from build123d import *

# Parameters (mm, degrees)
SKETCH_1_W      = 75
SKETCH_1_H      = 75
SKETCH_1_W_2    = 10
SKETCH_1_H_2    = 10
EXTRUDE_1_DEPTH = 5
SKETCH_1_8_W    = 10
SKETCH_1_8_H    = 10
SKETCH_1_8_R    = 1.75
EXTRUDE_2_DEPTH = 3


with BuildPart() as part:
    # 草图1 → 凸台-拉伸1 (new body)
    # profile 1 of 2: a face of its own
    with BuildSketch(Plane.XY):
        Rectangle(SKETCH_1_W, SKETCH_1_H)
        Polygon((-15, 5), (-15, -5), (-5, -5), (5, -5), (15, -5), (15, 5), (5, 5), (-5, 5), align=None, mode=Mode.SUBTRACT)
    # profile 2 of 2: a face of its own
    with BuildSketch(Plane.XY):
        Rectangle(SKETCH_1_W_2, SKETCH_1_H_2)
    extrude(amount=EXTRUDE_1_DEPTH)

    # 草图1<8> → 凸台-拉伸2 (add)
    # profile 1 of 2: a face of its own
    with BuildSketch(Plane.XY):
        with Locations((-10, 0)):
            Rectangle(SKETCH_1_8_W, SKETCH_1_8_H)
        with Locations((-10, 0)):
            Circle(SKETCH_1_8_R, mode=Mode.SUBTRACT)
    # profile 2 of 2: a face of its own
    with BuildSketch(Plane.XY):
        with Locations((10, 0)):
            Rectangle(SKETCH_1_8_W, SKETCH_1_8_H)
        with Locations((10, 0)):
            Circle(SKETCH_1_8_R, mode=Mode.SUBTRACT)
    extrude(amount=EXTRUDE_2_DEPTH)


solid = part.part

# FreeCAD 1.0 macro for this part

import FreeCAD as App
import Part
import Sketcher
Q = App.Units.Quantity

doc = App.newDocument("Part")
body = doc.addObject("PartDesign::Body", "Body")

# Sketch on XY plane
sketch1 = body.newObject("Sketcher::SketchObject", "Sketch")
sketch1.AttachmentSupport = (doc.getObject("XY_Plane"), [""])
sketch1.MapMode = "FlatFace"
sketch1.addGeometry([
    Part.LineSegment(App.Vector(-38, 38, 0), App.Vector(-38, -38, 0)),  # 0
    Part.LineSegment(App.Vector(-38, -38, 0), App.Vector(38, -38, 0)),  # 1
    Part.LineSegment(App.Vector(38, -38, 0), App.Vector(38, 38, 0)),  # 2
    Part.LineSegment(App.Vector(38, 38, 0), App.Vector(-38, 38, 0)),  # 3
    Part.LineSegment(App.Vector(-15, -5, 0), App.Vector(-15, 5, 0)),  # 4
    Part.LineSegment(App.Vector(-15, 5, 0), App.Vector(-5, 5, 0)),  # 5
    Part.LineSegment(App.Vector(-5, 5, 0), App.Vector(-5, -5, 0)),  # 6
    Part.LineSegment(App.Vector(-5, -5, 0), App.Vector(-15, -5, 0)),  # 7
    Part.LineSegment(App.Vector(5, 5, 0), App.Vector(15, 5, 0)),  # 8
    Part.LineSegment(App.Vector(15, 5, 0), App.Vector(15, -5, 0)),  # 9
    Part.LineSegment(App.Vector(15, -5, 0), App.Vector(5, -5, 0)),  # 10
    Part.LineSegment(App.Vector(5, -5, 0), App.Vector(5, 5, 0)),  # 11
], False)
sketch1.addConstraint([
    Sketcher.Constraint("Coincident", 0, 2, 1, 1),
    Sketcher.Constraint("Coincident", 1, 2, 2, 1),
    Sketcher.Constraint("Coincident", 2, 2, 3, 1),
    Sketcher.Constraint("Coincident", 3, 2, 0, 1),
    Sketcher.Constraint("Coincident", 4, 2, 5, 1),
    Sketcher.Constraint("Coincident", 5, 2, 6, 1),
    Sketcher.Constraint("Coincident", 6, 2, 7, 1),
    Sketcher.Constraint("Coincident", 7, 2, 4, 1),
    Sketcher.Constraint("Coincident", 8, 2, 9, 1),
    Sketcher.Constraint("Coincident", 9, 2, 10, 1),
    Sketcher.Constraint("Coincident", 10, 2, 11, 1),
    Sketcher.Constraint("Coincident", 11, 2, 8, 1),
    Sketcher.Constraint("Vertical", 0),
    Sketcher.Constraint("Horizontal", 1),
    Sketcher.Constraint("Vertical", 2),
    Sketcher.Constraint("Horizontal", 3),
    Sketcher.Constraint("Vertical", 4),
    Sketcher.Constraint("Horizontal", 5),
    Sketcher.Constraint("Vertical", 6),
    Sketcher.Constraint("Horizontal", 7),
    Sketcher.Constraint("Horizontal", 8),
    Sketcher.Constraint("Vertical", 9),
    Sketcher.Constraint("Horizontal", 10),
    Sketcher.Constraint("Vertical", 11),
    Sketcher.Constraint("Symmetric", 0, 2, 2, 2, -1, 1),
    Sketcher.Constraint("Symmetric", 7, 2, 8, 2, -1, 1),
    Sketcher.Constraint("Symmetric", 5, 2, 10, 2, -1, 1),
    Sketcher.Constraint("Horizontal", 5, 2, 8, 2),
    Sketcher.Constraint("Equal", 3, 0),
    Sketcher.Constraint("Equal", 10, 4),
    Sketcher.Constraint("DistanceX", 1, 1, 1, 2, Q("75 mm")),
    Sketcher.Constraint("DistanceX", 5, 1, 5, 2, Q("10 mm")),
    Sketcher.Constraint("DistanceX", 4, 2, -1, 1, Q("15 mm")),
])
pad1 = body.newObject("PartDesign::Pad", "Pad")
pad1.Profile = sketch1
pad1.Length = 5

# Sketch on XY plane
sketch2 = body.newObject("Sketcher::SketchObject", "Sketch001")
sketch2.AttachmentSupport = (doc.getObject("XY_Plane"), [""])
sketch2.MapMode = "FlatFace"
sketch2.addGeometry([
    Part.LineSegment(App.Vector(-15, 5, 0), App.Vector(-15, -5, 0)),  # 0
    Part.LineSegment(App.Vector(-15, -5, 0), App.Vector(-5, -5, 0)),  # 1
    Part.LineSegment(App.Vector(-5, -5, 0), App.Vector(-5, 5, 0)),  # 2
    Part.LineSegment(App.Vector(-5, 5, 0), App.Vector(-15, 5, 0)),  # 3
    Part.Circle(App.Vector(-10, 0, 0), App.Vector(0, 0, 1), 1.8),  # 4
    Part.LineSegment(App.Vector(5, 5, 0), App.Vector(5, -5, 0)),  # 5
    Part.LineSegment(App.Vector(5, -5, 0), App.Vector(15, -5, 0)),  # 6
    Part.LineSegment(App.Vector(15, -5, 0), App.Vector(15, 5, 0)),  # 7
    Part.LineSegment(App.Vector(15, 5, 0), App.Vector(5, 5, 0)),  # 8
    Part.Circle(App.Vector(10, 0, 0), App.Vector(0, 0, 1), 1.8),  # 9
], False)
sketch2.addConstraint([
    Sketcher.Constraint("Coincident", 0, 2, 1, 1),
    Sketcher.Constraint("Coincident", 1, 2, 2, 1),
    Sketcher.Constraint("Coincident", 2, 2, 3, 1),
    Sketcher.Constraint("Coincident", 3, 2, 0, 1),
    Sketcher.Constraint("Coincident", 5, 2, 6, 1),
    Sketcher.Constraint("Coincident", 6, 2, 7, 1),
    Sketcher.Constraint("Coincident", 7, 2, 8, 1),
    Sketcher.Constraint("Coincident", 8, 2, 5, 1),
    Sketcher.Constraint("Vertical", 0),
    Sketcher.Constraint("Horizontal", 1),
    Sketcher.Constraint("Vertical", 2),
    Sketcher.Constraint("Horizontal", 3),
    Sketcher.Constraint("Vertical", 5),
    Sketcher.Constraint("Horizontal", 6),
    Sketcher.Constraint("Vertical", 7),
    Sketcher.Constraint("Horizontal", 8),
    Sketcher.Constraint("Equal", 4, 9),
    Sketcher.Constraint("Symmetric", 4, 3, 9, 3, -1, 1),
    Sketcher.Constraint("Symmetric", 2, 2, 5, 2, -1, 1),
    Sketcher.Constraint("Symmetric", 0, 2, 7, 2, -1, 1),
    Sketcher.Constraint("PointOnObject", 4, 3, -1),
    Sketcher.Constraint("Horizontal", 1, 2, 5, 2),
    Sketcher.Constraint("Equal", 8, 0),
    Sketcher.Constraint("Diameter", 4, Q("3.5 mm")),
    Sketcher.Constraint("DistanceX", 1, 1, 1, 2, Q("10 mm")),
    Sketcher.Constraint("DistanceX", 4, 3, -1, 1, Q("10 mm")),
    Sketcher.Constraint("DistanceX", 0, 2, -1, 1, Q("15 mm")),
])
pad2 = body.newObject("PartDesign::Pad", "Pad001")
pad2.Profile = sketch2
pad2.Length = 3

doc.recompute()
